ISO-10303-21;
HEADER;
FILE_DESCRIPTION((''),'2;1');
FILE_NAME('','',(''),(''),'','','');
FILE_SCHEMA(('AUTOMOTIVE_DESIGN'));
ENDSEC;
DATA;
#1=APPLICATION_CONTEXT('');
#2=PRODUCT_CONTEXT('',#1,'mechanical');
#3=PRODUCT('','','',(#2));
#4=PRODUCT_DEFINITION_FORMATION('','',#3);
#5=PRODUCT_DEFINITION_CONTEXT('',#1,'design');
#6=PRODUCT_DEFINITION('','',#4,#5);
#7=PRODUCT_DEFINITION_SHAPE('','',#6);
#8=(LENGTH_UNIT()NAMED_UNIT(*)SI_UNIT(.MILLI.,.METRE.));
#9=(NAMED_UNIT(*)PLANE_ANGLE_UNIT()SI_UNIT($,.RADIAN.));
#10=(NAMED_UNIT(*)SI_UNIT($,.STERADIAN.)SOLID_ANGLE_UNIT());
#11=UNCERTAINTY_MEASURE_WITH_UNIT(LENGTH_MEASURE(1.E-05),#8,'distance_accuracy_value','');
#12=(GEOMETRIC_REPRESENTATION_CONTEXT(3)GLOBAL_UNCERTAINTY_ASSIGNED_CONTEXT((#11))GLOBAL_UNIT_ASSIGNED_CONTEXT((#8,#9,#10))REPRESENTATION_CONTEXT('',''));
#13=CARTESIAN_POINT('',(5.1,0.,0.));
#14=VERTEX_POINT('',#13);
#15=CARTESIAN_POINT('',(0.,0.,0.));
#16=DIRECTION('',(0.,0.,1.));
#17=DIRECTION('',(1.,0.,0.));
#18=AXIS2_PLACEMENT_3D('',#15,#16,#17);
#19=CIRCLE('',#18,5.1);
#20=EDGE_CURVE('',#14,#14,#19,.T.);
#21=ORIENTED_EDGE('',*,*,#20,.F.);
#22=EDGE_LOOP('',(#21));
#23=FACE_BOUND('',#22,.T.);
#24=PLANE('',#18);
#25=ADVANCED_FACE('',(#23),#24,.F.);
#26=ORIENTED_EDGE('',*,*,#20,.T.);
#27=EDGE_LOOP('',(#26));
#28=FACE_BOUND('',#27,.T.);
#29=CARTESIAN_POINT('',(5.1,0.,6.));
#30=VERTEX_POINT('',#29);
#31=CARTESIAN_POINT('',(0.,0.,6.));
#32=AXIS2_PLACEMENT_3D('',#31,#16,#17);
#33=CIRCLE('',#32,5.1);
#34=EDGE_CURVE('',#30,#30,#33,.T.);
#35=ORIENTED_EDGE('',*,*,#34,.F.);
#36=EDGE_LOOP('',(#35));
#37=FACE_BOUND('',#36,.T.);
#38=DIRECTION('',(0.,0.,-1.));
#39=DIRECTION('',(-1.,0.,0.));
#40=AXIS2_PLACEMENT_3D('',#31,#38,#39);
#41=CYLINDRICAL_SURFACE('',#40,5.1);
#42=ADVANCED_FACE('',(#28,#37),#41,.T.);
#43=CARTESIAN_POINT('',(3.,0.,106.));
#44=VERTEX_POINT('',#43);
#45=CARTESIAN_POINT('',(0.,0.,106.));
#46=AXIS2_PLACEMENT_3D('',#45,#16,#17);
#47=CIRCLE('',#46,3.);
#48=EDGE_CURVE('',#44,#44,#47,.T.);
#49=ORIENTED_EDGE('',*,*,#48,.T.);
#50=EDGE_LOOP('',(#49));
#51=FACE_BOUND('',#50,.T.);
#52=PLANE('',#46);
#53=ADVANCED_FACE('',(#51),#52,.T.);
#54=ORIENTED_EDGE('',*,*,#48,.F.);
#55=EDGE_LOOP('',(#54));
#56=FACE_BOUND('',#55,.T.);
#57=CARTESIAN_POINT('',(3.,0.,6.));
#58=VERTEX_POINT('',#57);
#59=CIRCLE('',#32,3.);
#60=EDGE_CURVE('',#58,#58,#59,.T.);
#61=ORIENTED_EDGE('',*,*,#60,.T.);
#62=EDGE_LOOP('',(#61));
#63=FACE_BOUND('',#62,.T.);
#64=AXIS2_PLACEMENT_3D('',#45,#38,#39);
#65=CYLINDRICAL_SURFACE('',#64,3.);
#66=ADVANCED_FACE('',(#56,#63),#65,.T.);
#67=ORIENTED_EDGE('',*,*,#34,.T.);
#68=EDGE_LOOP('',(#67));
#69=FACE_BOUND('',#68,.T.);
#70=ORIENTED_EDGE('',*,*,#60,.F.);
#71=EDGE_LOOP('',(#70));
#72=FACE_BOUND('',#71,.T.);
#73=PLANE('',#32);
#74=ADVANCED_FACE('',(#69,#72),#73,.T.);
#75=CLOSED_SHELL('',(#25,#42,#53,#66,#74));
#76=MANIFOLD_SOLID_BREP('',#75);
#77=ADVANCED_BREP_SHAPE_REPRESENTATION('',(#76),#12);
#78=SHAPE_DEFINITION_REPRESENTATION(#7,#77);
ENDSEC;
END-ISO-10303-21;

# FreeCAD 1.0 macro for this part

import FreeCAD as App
import Part
import Sketcher

doc = App.newDocument("Part")
body = doc.addObject("PartDesign::Body", "Body")

sketch1 = doc.addObject("Sketcher::SketchObject", "Sketch")
body.addObject(sketch1)
sketch1.AttachmentSupport = (doc.XY_Plane, [""])
sketch1.MapMode = "FlatFace"
sketch1.addGeometry(Part.Circle(App.Vector(0, 0, 0), App.Vector(0, 0, 1), 5.1), False)
sketch1.addConstraint([
    Sketcher.Constraint("Coincident", 0, 3, -1, 1),
    Sketcher.Constraint("Diameter", 0, 10.2),
])
pad1 = doc.addObject("PartDesign::Pad", "Pad")
body.addObject(pad1)
pad1.Profile = sketch1
pad1.Length = 6

sketch2 = doc.addObject("Sketcher::SketchObject", "Sketch001")
body.addObject(sketch2)
sketch2.AttachmentSupport = (doc.XY_Plane, [""])
sketch2.MapMode = "FlatFace"
sketch2.AttachmentOffset = App.Placement(App.Vector(0, 0, 6), App.Rotation())
sketch2.addGeometry(Part.Circle(App.Vector(0, 0, 0), App.Vector(0, 0, 1), 3), False)
sketch2.addConstraint([
    Sketcher.Constraint("Coincident", 0, 3, -1, 1),
    Sketcher.Constraint("Diameter", 0, 6.0),
])
pad2 = doc.addObject("PartDesign::Pad", "Pad001")
body.addObject(pad2)
pad2.Profile = sketch2
pad2.Length = 100

doc.recompute()
